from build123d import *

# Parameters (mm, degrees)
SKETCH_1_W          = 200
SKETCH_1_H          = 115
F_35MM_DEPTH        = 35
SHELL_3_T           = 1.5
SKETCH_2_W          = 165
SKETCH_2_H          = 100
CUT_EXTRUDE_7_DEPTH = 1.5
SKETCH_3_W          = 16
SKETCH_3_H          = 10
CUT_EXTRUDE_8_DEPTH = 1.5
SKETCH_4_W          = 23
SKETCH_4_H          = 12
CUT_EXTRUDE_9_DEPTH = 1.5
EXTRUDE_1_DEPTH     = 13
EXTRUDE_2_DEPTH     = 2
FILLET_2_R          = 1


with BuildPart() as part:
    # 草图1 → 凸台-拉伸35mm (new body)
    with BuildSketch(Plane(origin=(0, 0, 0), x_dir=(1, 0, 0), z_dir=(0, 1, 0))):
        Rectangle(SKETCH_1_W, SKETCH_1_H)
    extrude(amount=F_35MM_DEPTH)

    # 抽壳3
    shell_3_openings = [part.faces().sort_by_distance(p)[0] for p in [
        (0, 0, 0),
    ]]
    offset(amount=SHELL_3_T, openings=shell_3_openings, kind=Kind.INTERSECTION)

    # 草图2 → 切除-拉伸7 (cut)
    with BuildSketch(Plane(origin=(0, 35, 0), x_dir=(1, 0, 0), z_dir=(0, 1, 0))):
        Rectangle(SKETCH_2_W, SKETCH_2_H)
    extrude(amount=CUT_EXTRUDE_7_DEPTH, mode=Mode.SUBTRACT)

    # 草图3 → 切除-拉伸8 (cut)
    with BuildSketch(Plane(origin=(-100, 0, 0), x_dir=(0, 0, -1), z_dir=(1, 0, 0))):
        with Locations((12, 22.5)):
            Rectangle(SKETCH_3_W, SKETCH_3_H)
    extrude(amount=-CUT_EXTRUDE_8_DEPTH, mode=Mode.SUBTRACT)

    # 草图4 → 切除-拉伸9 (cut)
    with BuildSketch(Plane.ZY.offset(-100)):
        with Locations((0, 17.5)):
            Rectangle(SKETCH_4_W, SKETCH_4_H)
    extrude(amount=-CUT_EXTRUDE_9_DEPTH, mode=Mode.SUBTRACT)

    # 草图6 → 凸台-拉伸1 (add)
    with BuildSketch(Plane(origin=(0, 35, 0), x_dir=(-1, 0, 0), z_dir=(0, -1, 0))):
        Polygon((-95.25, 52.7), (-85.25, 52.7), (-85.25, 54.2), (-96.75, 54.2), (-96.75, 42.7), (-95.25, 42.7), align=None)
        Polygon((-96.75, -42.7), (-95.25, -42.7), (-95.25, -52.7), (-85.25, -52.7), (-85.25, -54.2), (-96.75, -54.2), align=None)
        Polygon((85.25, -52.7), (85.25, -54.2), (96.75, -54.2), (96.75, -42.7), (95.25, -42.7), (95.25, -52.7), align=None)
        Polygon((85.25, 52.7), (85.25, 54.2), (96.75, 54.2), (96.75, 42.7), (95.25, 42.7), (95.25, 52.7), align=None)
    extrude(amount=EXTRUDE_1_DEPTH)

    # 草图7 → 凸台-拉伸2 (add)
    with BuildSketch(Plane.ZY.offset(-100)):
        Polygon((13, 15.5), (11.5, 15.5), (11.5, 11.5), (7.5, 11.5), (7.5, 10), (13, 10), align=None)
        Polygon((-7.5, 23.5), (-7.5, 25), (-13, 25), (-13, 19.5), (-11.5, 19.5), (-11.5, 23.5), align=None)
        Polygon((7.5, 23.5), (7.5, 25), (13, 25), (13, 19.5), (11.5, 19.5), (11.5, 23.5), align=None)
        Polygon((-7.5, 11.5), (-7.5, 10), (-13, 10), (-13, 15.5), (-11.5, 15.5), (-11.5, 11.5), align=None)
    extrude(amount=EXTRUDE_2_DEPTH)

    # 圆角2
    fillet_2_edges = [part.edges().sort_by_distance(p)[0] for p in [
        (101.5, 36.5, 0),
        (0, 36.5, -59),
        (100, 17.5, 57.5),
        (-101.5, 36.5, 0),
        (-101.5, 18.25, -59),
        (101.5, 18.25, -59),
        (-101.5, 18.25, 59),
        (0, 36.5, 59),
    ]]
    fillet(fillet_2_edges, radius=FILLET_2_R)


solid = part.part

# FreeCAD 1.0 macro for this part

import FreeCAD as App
import Part
import Sketcher
Q = App.Units.Quantity


def edges_at(feature, points):
    """Names of the edges that pass closest to the given points."""
    edges = feature.Shape.Edges
    near = lambda p: min(range(len(edges)), key=lambda i: edges[i].distToShape(Part.Vertex(*p))[0])
    return sorted({f"Edge{near(p) + 1}" for p in points})


def faces_at(feature, points):
    """Names of the faces that lie closest to the given points."""
    faces = feature.Shape.Faces
    near = lambda p: min(range(len(faces)), key=lambda i: faces[i].distToShape(Part.Vertex(*p))[0])
    return sorted({f"Face{near(p) + 1}" for p in points})


def add_polygon(sketch, points):
    """Adds a closed chain of lines whose ends are joined by coincident constraints."""
    first, n = sketch.GeometryCount, len(points)
    for a, b in zip(points, points[1:] + points[:1]):
        sketch.addGeometry(Part.LineSegment(App.Vector(*a, 0), App.Vector(*b, 0)), False)
    for i in range(n):
        sketch.addConstraint(Sketcher.Constraint("Coincident", first + i, 2, first + (i + 1) % n, 1))

doc = App.newDocument("Part")
params = doc.addObject("Spreadsheet::Sheet", "Params")
for row, (alias, value) in enumerate([
    ("sketch1_width", "200 mm"),
    ("sketch1_height", "115 mm"),
    ("pad1_length", "35 mm"),
    ("thickness_wall", "1.5 mm"),
    ("sketch2_width", "165 mm"),
    ("sketch2_height", "100 mm"),
    ("pocket1_length", "1.5 mm"),
    ("sketch3_width", "10 mm"),
    ("sketch3_height", "16 mm"),
    ("pocket2_length", "1.5 mm"),
    ("sketch4_width", "12 mm"),
    ("sketch4_height", "23 mm"),
    ("pocket3_length", "1.5 mm"),
    ("sketch5_width", "10 mm"),
    ("sketch5_width2", "11.5 mm"),
    ("pad2_length", "13 mm"),
    ("sketch6_width", "4 mm"),
    ("sketch6_width2", "1.5 mm"),
    ("pad3_length", "2 mm"),
    ("fillet_radius", "1 mm"),
], start=1):
    params.set(f"A{row}", alias)
    params.set(f"B{row}", "=" + value)
    params.setAlias(f"B{row}", alias)

body = doc.addObject("PartDesign::Body", "Body")

sketch1 = doc.addObject("Sketcher::SketchObject", "Sketch")
body.addObject(sketch1)
sketch1.AttachmentSupport = (doc.XZ_Plane, [""])
sketch1.MapMode = "FlatFace"
add_polygon(sketch1, [(-100, -58), (-100, 58), (100, 58), (100, -58)])
sketch1.addConstraint(Sketcher.Constraint("Vertical", 0))
sketch1.addConstraint(Sketcher.Constraint("Horizontal", 1))
sketch1.addConstraint(Sketcher.Constraint("Vertical", 2))
sketch1.addConstraint(Sketcher.Constraint("Horizontal", 3))
sketch1.addConstraint(Sketcher.Constraint("Symmetric", 0, 2, 2, 2, -1, 1))
sketch1.addConstraint(Sketcher.Constraint("DistanceX", 1, 1, 1, 2, Q("200 mm")))
sketch1.addConstraint(Sketcher.Constraint("DistanceY", 0, 1, 0, 2, Q("115 mm")))
sketch1.setExpression("Constraints[9]", "Params.sketch1_width")
sketch1.setExpression("Constraints[10]", "Params.sketch1_height")
pad1 = doc.addObject("PartDesign::Pad", "Pad")
body.addObject(pad1)
pad1.Profile = sketch1
pad1.setExpression("Length", "Params.pad1_length")
pad1.Reversed = True
doc.recompute()

thickness = doc.addObject("PartDesign::Thickness", "Thickness")
body.addObject(thickness)
thickness.Base = (pad1, faces_at(pad1, [(0, 0, 0)]))
thickness.setExpression("Value", "Params.thickness_wall")
thickness.Reversed = False
thickness.Join = "Intersection"

sketch2 = doc.addObject("Sketcher::SketchObject", "Sketch001")
body.addObject(sketch2)
sketch2.AttachmentSupport = (doc.XZ_Plane, [""])
sketch2.MapMode = "FlatFace"
sketch2.AttachmentOffset = App.Placement(App.Vector(0, 0, -35), App.Rotation())
add_polygon(sketch2, [(-82, -50), (-82, 50), (82, 50), (82, -50)])
sketch2.addConstraint(Sketcher.Constraint("Vertical", 0))
sketch2.addConstraint(Sketcher.Constraint("Horizontal", 1))
sketch2.addConstraint(Sketcher.Constraint("Vertical", 2))
sketch2.addConstraint(Sketcher.Constraint("Horizontal", 3))
sketch2.addConstraint(Sketcher.Constraint("Symmetric", 0, 2, 2, 2, -1, 1))
sketch2.addConstraint(Sketcher.Constraint("DistanceX", 1, 1, 1, 2, Q("165 mm")))
sketch2.addConstraint(Sketcher.Constraint("DistanceY", 0, 1, 0, 2, Q("100 mm")))
sketch2.setExpression("Constraints[9]", "Params.sketch2_width")
sketch2.setExpression("Constraints[10]", "Params.sketch2_height")
pocket1 = doc.addObject("PartDesign::Pocket", "Pocket")
body.addObject(pocket1)
pocket1.Profile = sketch2
pocket1.setExpression("Length", "Params.pocket1_length")

sketch3 = doc.addObject("Sketcher::SketchObject", "Sketch002")
body.addObject(sketch3)
sketch3.AttachmentSupport = (doc.YZ_Plane, [""])
sketch3.MapMode = "FlatFace"
sketch3.AttachmentOffset = App.Placement(App.Vector(0, 0, -100), App.Rotation())
add_polygon(sketch3, [(28, -4), (18, -4), (18, -20), (28, -20)])
sketch3.addConstraint(Sketcher.Constraint("Horizontal", 0))
sketch3.addConstraint(Sketcher.Constraint("Vertical", 1))
sketch3.addConstraint(Sketcher.Constraint("Horizontal", 2))
sketch3.addConstraint(Sketcher.Constraint("Vertical", 3))
sketch3.addConstraint(Sketcher.Constraint("DistanceX", 0, 2, 0, 1, Q("10 mm")))
sketch3.addConstraint(Sketcher.Constraint("DistanceY", 1, 2, 1, 1, Q("16 mm")))
sketch3.addConstraint(Sketcher.Constraint("DistanceY", 0, 2, -1, 1, Q("4 mm")))
sketch3.addConstraint(Sketcher.Constraint("DistanceX", -1, 1, 0, 2, Q("17.5 mm")))
sketch3.setExpression("Constraints[8]", "Params.sketch3_width")
sketch3.setExpression("Constraints[9]", "Params.sketch3_height")
pocket2 = doc.addObject("PartDesign::Pocket", "Pocket001")
body.addObject(pocket2)
pocket2.Profile = sketch3
pocket2.setExpression("Length", "Params.pocket2_length")

sketch4 = doc.addObject("Sketcher::SketchObject", "Sketch003")
body.addObject(sketch4)
sketch4.AttachmentSupport = (doc.YZ_Plane, [""])
sketch4.MapMode = "FlatFace"
sketch4.AttachmentOffset = App.Placement(App.Vector(0, 0, 100), App.Rotation())
add_polygon(sketch4, [(24, -12), (12, -12), (12, 12), (24, 12)])
sketch4.addConstraint(Sketcher.Constraint("Horizontal", 0))
sketch4.addConstraint(Sketcher.Constraint("Vertical", 1))
sketch4.addConstraint(Sketcher.Constraint("Horizontal", 2))
sketch4.addConstraint(Sketcher.Constraint("Vertical", 3))
sketch4.addConstraint(Sketcher.Constraint("DistanceX", 0, 2, 0, 1, Q("12 mm")))
sketch4.addConstraint(Sketcher.Constraint("DistanceY", 1, 1, 1, 2, Q("23 mm")))
sketch4.addConstraint(Sketcher.Constraint("DistanceX", -1, 1, 0, 2, Q("11.5 mm")))
sketch4.addConstraint(Sketcher.Constraint("DistanceY", 0, 2, -1, 1, Q("11.5 mm")))
sketch4.setExpression("Constraints[8]", "Params.sketch4_width")
sketch4.setExpression("Constraints[9]", "Params.sketch4_height")
pocket3 = doc.addObject("PartDesign::Pocket", "Pocket002")
body.addObject(pocket3)
pocket3.Profile = sketch4
pocket3.setExpression("Length", "Params.pocket3_length")
pocket3.Reversed = True

sketch5 = doc.addObject("Sketcher::SketchObject", "Sketch004")
body.addObject(sketch5)
sketch5.AttachmentSupport = (doc.XZ_Plane, [""])
sketch5.MapMode = "FlatFace"
sketch5.AttachmentOffset = App.Placement(App.Vector(0, 0, -35), App.Rotation())
add_polygon(sketch5, [(95.2, -52.7), (85.2, -52.7), (85.2, -54.2), (96.8, -54.2), (96.8, -42.7), (95.2, -42.7)])
add_polygon(sketch5, [(95.2, 42.7), (96.8, 42.7), (96.8, 54.2), (85.2, 54.2), (85.2, 52.7), (95.2, 52.7)])
add_polygon(sketch5, [(-85.2, 52.7), (-85.2, 54.2), (-96.8, 54.2), (-96.8, 42.7), (-95.2, 42.7), (-95.2, 52.7)])
add_polygon(sketch5, [(-85.2, -54.2), (-85.2, -52.7), (-95.2, -52.7), (-95.2, -42.7), (-96.8, -42.7), (-96.8, -54.2)])
sketch5.addConstraint(Sketcher.Constraint("Horizontal", 0))
sketch5.addConstraint(Sketcher.Constraint("Vertical", 1))
sketch5.addConstraint(Sketcher.Constraint("Horizontal", 2))
sketch5.addConstraint(Sketcher.Constraint("Vertical", 3))
sketch5.addConstraint(Sketcher.Constraint("Horizontal", 4))
sketch5.addConstraint(Sketcher.Constraint("Vertical", 5))
sketch5.addConstraint(Sketcher.Constraint("Horizontal", 6))
sketch5.addConstraint(Sketcher.Constraint("Vertical", 7))
sketch5.addConstraint(Sketcher.Constraint("Horizontal", 8))
sketch5.addConstraint(Sketcher.Constraint("Vertical", 9))
sketch5.addConstraint(Sketcher.Constraint("Horizontal", 10))
sketch5.addConstraint(Sketcher.Constraint("Vertical", 11))
sketch5.addConstraint(Sketcher.Constraint("Vertical", 12))
sketch5.addConstraint(Sketcher.Constraint("Horizontal", 13))
sketch5.addConstraint(Sketcher.Constraint("Vertical", 14))
sketch5.addConstraint(Sketcher.Constraint("Horizontal", 15))
sketch5.addConstraint(Sketcher.Constraint("Vertical", 16))
sketch5.addConstraint(Sketcher.Constraint("Horizontal", 17))
sketch5.addConstraint(Sketcher.Constraint("Vertical", 18))
sketch5.addConstraint(Sketcher.Constraint("Horizontal", 19))
sketch5.addConstraint(Sketcher.Constraint("Vertical", 20))
sketch5.addConstraint(Sketcher.Constraint("Horizontal", 21))
sketch5.addConstraint(Sketcher.Constraint("Vertical", 22))
sketch5.addConstraint(Sketcher.Constraint("Horizontal", 23))
sketch5.addConstraint(Sketcher.Constraint("Symmetric", 1, 2, 12, 2, -1, 1))
sketch5.addConstraint(Sketcher.Constraint("Symmetric", 3, 2, 14, 2, -1, 1))
sketch5.addConstraint(Sketcher.Constraint("Symmetric", 5, 2, 16, 2, -1, 1))
sketch5.addConstraint(Sketcher.Constraint("Symmetric", 9, 2, 18, 2, -1, 1))
sketch5.addConstraint(Sketcher.Constraint("Symmetric", 11, 2, 20, 2, -1, 1))
sketch5.addConstraint(Sketcher.Constraint("Symmetric", 7, 2, 22, 2, -1, 1))
sketch5.addConstraint(Sketcher.Constraint("Symmetric", 8, 2, 12, 2, -2))
sketch5.addConstraint(Sketcher.Constraint("Symmetric", 6, 2, 14, 2, -2))
sketch5.addConstraint(Sketcher.Constraint("Symmetric", 10, 2, 16, 2, -2))
sketch5.addConstraint(Sketcher.Constraint("Equal", 21, 1))
sketch5.addConstraint(Sketcher.Constraint("Equal", 23, 3))
sketch5.addConstraint(Sketcher.Constraint("DistanceX", 0, 2, 0, 1, Q("10 mm")))
sketch5.addConstraint(Sketcher.Constraint("DistanceX", 2, 1, 2, 2, Q("11.5 mm")))
sketch5.addConstraint(Sketcher.Constraint("DistanceX", 12, 2, 7, 2, Q("182 mm")))
sketch5.addConstraint(Sketcher.Constraint("DistanceY", 0, 2, -1, 1, Q("52.7 mm")))
sketch5.setExpression("Constraints[59]", "Params.sketch5_width")
sketch5.setExpression("Constraints[60]", "Params.sketch5_width2")
pad2 = doc.addObject("PartDesign::Pad", "Pad001")
body.addObject(pad2)
pad2.Profile = sketch5
pad2.setExpression("Length", "Params.pad2_length")

sketch6 = doc.addObject("Sketcher::SketchObject", "Sketch005")
body.addObject(sketch6)
sketch6.AttachmentSupport = (doc.YZ_Plane, [""])
sketch6.MapMode = "FlatFace"
sketch6.AttachmentOffset = App.Placement(App.Vector(0, 0, 100), App.Rotation())
add_polygon(sketch6, [(15.5, 13), (15.5, 11.5), (11.5, 11.5), (11.5, 7.5), (10, 7.5), (10, 13)])
add_polygon(sketch6, [(23.5, -7.5), (25, -7.5), (25, -13), (19.5, -13), (19.5, -11.5), (23.5, -11.5)])
add_polygon(sketch6, [(25, 7.5), (23.5, 7.5), (23.5, 11.5), (19.5, 11.5), (19.5, 13), (25, 13)])
add_polygon(sketch6, [(10, -7.5), (11.5, -7.5), (11.5, -11.5), (15.5, -11.5), (15.5, -13), (10, -13)])
sketch6.addConstraint(Sketcher.Constraint("Vertical", 0))
sketch6.addConstraint(Sketcher.Constraint("Horizontal", 1))
sketch6.addConstraint(Sketcher.Constraint("Vertical", 2))
sketch6.addConstraint(Sketcher.Constraint("Horizontal", 3))
sketch6.addConstraint(Sketcher.Constraint("Vertical", 4))
sketch6.addConstraint(Sketcher.Constraint("Horizontal", 5))
sketch6.addConstraint(Sketcher.Constraint("Horizontal", 6))
sketch6.addConstraint(Sketcher.Constraint("Vertical", 7))
sketch6.addConstraint(Sketcher.Constraint("Horizontal", 8))
sketch6.addConstraint(Sketcher.Constraint("Vertical", 9))
sketch6.addConstraint(Sketcher.Constraint("Horizontal", 10))
sketch6.addConstraint(Sketcher.Constraint("Vertical", 11))
sketch6.addConstraint(Sketcher.Constraint("Horizontal", 12))
sketch6.addConstraint(Sketcher.Constraint("Vertical", 13))
sketch6.addConstraint(Sketcher.Constraint("Horizontal", 14))
sketch6.addConstraint(Sketcher.Constraint("Vertical", 15))
sketch6.addConstraint(Sketcher.Constraint("Horizontal", 16))
sketch6.addConstraint(Sketcher.Constraint("Vertical", 17))
sketch6.addConstraint(Sketcher.Constraint("Horizontal", 18))
sketch6.addConstraint(Sketcher.Constraint("Vertical", 19))
sketch6.addConstraint(Sketcher.Constraint("Horizontal", 20))
sketch6.addConstraint(Sketcher.Constraint("Vertical", 21))
sketch6.addConstraint(Sketcher.Constraint("Horizontal", 22))
sketch6.addConstraint(Sketcher.Constraint("Vertical", 23))
sketch6.addConstraint(Sketcher.Constraint("Symmetric", 11, 2, 12, 2, -1))
sketch6.addConstraint(Sketcher.Constraint("Symmetric", 9, 2, 14, 2, -1))
sketch6.addConstraint(Sketcher.Constraint("Symmetric", 7, 2, 16, 2, -1))
sketch6.addConstraint(Sketcher.Constraint("Symmetric", 2, 2, 18, 2, -1))
sketch6.addConstraint(Sketcher.Constraint("Symmetric", 0, 2, 20, 2, -1))
sketch6.addConstraint(Sketcher.Constraint("Symmetric", 4, 2, 22, 2, -1))
sketch6.addConstraint(Sketcher.Constraint("Horizontal", 3, 2, 12, 2))
sketch6.addConstraint(Sketcher.Constraint("Horizontal", 1, 2, 13, 2))
sketch6.addConstraint(Sketcher.Constraint("Horizontal", 5, 2, 15, 2))
sketch6.addConstraint(Sketcher.Constraint("Equal", 3, 6))
sketch6.addConstraint(Sketcher.Constraint("Equal", 5, 8))
sketch6.addConstraint(Sketcher.Constraint("Equal", 18, 0))
sketch6.addConstraint(Sketcher.Constraint("Equal", 20, 2))
sketch6.addConstraint(Sketcher.Constraint("DistanceX", 1, 2, 1, 1, Q("4 mm")))
sketch6.addConstraint(Sketcher.Constraint("DistanceX", 3, 2, 3, 1, Q("1.5 mm")))
sketch6.addConstraint(Sketcher.Constraint("DistanceX", -1, 1, 3, 2, Q("10 mm")))
sketch6.addConstraint(Sketcher.Constraint("DistanceY", -1, 1, 4, 2, Q("13 mm")))
sketch6.addConstraint(Sketcher.Constraint("DistanceX", -1, 1, 6, 2, Q("25 mm")))
sketch6.setExpression("Constraints[61]", "Params.sketch6_width")
sketch6.setExpression("Constraints[62]", "Params.sketch6_width2")
pad3 = doc.addObject("PartDesign::Pad", "Pad002")
body.addObject(pad3)
pad3.Profile = sketch6
pad3.setExpression("Length", "Params.pad3_length")
pad3.Reversed = True
doc.recompute()

fillet = doc.addObject("PartDesign::Fillet", "Fillet")
body.addObject(fillet)
fillet.Base = (pad3, edges_at(pad3, [
    (101.5, 36.5, 0),
    (0, 36.5, -59),
    (100, 17.5, 57.5),
    (-101.5, 36.5, 0),
    (-101.5, 18.25, -59),
    (101.5, 18.25, -59),
    (-101.5, 18.25, 59),
    (0, 36.5, 59),
]))
fillet.setExpression("Radius", "Params.fillet_radius")

doc.recompute()
